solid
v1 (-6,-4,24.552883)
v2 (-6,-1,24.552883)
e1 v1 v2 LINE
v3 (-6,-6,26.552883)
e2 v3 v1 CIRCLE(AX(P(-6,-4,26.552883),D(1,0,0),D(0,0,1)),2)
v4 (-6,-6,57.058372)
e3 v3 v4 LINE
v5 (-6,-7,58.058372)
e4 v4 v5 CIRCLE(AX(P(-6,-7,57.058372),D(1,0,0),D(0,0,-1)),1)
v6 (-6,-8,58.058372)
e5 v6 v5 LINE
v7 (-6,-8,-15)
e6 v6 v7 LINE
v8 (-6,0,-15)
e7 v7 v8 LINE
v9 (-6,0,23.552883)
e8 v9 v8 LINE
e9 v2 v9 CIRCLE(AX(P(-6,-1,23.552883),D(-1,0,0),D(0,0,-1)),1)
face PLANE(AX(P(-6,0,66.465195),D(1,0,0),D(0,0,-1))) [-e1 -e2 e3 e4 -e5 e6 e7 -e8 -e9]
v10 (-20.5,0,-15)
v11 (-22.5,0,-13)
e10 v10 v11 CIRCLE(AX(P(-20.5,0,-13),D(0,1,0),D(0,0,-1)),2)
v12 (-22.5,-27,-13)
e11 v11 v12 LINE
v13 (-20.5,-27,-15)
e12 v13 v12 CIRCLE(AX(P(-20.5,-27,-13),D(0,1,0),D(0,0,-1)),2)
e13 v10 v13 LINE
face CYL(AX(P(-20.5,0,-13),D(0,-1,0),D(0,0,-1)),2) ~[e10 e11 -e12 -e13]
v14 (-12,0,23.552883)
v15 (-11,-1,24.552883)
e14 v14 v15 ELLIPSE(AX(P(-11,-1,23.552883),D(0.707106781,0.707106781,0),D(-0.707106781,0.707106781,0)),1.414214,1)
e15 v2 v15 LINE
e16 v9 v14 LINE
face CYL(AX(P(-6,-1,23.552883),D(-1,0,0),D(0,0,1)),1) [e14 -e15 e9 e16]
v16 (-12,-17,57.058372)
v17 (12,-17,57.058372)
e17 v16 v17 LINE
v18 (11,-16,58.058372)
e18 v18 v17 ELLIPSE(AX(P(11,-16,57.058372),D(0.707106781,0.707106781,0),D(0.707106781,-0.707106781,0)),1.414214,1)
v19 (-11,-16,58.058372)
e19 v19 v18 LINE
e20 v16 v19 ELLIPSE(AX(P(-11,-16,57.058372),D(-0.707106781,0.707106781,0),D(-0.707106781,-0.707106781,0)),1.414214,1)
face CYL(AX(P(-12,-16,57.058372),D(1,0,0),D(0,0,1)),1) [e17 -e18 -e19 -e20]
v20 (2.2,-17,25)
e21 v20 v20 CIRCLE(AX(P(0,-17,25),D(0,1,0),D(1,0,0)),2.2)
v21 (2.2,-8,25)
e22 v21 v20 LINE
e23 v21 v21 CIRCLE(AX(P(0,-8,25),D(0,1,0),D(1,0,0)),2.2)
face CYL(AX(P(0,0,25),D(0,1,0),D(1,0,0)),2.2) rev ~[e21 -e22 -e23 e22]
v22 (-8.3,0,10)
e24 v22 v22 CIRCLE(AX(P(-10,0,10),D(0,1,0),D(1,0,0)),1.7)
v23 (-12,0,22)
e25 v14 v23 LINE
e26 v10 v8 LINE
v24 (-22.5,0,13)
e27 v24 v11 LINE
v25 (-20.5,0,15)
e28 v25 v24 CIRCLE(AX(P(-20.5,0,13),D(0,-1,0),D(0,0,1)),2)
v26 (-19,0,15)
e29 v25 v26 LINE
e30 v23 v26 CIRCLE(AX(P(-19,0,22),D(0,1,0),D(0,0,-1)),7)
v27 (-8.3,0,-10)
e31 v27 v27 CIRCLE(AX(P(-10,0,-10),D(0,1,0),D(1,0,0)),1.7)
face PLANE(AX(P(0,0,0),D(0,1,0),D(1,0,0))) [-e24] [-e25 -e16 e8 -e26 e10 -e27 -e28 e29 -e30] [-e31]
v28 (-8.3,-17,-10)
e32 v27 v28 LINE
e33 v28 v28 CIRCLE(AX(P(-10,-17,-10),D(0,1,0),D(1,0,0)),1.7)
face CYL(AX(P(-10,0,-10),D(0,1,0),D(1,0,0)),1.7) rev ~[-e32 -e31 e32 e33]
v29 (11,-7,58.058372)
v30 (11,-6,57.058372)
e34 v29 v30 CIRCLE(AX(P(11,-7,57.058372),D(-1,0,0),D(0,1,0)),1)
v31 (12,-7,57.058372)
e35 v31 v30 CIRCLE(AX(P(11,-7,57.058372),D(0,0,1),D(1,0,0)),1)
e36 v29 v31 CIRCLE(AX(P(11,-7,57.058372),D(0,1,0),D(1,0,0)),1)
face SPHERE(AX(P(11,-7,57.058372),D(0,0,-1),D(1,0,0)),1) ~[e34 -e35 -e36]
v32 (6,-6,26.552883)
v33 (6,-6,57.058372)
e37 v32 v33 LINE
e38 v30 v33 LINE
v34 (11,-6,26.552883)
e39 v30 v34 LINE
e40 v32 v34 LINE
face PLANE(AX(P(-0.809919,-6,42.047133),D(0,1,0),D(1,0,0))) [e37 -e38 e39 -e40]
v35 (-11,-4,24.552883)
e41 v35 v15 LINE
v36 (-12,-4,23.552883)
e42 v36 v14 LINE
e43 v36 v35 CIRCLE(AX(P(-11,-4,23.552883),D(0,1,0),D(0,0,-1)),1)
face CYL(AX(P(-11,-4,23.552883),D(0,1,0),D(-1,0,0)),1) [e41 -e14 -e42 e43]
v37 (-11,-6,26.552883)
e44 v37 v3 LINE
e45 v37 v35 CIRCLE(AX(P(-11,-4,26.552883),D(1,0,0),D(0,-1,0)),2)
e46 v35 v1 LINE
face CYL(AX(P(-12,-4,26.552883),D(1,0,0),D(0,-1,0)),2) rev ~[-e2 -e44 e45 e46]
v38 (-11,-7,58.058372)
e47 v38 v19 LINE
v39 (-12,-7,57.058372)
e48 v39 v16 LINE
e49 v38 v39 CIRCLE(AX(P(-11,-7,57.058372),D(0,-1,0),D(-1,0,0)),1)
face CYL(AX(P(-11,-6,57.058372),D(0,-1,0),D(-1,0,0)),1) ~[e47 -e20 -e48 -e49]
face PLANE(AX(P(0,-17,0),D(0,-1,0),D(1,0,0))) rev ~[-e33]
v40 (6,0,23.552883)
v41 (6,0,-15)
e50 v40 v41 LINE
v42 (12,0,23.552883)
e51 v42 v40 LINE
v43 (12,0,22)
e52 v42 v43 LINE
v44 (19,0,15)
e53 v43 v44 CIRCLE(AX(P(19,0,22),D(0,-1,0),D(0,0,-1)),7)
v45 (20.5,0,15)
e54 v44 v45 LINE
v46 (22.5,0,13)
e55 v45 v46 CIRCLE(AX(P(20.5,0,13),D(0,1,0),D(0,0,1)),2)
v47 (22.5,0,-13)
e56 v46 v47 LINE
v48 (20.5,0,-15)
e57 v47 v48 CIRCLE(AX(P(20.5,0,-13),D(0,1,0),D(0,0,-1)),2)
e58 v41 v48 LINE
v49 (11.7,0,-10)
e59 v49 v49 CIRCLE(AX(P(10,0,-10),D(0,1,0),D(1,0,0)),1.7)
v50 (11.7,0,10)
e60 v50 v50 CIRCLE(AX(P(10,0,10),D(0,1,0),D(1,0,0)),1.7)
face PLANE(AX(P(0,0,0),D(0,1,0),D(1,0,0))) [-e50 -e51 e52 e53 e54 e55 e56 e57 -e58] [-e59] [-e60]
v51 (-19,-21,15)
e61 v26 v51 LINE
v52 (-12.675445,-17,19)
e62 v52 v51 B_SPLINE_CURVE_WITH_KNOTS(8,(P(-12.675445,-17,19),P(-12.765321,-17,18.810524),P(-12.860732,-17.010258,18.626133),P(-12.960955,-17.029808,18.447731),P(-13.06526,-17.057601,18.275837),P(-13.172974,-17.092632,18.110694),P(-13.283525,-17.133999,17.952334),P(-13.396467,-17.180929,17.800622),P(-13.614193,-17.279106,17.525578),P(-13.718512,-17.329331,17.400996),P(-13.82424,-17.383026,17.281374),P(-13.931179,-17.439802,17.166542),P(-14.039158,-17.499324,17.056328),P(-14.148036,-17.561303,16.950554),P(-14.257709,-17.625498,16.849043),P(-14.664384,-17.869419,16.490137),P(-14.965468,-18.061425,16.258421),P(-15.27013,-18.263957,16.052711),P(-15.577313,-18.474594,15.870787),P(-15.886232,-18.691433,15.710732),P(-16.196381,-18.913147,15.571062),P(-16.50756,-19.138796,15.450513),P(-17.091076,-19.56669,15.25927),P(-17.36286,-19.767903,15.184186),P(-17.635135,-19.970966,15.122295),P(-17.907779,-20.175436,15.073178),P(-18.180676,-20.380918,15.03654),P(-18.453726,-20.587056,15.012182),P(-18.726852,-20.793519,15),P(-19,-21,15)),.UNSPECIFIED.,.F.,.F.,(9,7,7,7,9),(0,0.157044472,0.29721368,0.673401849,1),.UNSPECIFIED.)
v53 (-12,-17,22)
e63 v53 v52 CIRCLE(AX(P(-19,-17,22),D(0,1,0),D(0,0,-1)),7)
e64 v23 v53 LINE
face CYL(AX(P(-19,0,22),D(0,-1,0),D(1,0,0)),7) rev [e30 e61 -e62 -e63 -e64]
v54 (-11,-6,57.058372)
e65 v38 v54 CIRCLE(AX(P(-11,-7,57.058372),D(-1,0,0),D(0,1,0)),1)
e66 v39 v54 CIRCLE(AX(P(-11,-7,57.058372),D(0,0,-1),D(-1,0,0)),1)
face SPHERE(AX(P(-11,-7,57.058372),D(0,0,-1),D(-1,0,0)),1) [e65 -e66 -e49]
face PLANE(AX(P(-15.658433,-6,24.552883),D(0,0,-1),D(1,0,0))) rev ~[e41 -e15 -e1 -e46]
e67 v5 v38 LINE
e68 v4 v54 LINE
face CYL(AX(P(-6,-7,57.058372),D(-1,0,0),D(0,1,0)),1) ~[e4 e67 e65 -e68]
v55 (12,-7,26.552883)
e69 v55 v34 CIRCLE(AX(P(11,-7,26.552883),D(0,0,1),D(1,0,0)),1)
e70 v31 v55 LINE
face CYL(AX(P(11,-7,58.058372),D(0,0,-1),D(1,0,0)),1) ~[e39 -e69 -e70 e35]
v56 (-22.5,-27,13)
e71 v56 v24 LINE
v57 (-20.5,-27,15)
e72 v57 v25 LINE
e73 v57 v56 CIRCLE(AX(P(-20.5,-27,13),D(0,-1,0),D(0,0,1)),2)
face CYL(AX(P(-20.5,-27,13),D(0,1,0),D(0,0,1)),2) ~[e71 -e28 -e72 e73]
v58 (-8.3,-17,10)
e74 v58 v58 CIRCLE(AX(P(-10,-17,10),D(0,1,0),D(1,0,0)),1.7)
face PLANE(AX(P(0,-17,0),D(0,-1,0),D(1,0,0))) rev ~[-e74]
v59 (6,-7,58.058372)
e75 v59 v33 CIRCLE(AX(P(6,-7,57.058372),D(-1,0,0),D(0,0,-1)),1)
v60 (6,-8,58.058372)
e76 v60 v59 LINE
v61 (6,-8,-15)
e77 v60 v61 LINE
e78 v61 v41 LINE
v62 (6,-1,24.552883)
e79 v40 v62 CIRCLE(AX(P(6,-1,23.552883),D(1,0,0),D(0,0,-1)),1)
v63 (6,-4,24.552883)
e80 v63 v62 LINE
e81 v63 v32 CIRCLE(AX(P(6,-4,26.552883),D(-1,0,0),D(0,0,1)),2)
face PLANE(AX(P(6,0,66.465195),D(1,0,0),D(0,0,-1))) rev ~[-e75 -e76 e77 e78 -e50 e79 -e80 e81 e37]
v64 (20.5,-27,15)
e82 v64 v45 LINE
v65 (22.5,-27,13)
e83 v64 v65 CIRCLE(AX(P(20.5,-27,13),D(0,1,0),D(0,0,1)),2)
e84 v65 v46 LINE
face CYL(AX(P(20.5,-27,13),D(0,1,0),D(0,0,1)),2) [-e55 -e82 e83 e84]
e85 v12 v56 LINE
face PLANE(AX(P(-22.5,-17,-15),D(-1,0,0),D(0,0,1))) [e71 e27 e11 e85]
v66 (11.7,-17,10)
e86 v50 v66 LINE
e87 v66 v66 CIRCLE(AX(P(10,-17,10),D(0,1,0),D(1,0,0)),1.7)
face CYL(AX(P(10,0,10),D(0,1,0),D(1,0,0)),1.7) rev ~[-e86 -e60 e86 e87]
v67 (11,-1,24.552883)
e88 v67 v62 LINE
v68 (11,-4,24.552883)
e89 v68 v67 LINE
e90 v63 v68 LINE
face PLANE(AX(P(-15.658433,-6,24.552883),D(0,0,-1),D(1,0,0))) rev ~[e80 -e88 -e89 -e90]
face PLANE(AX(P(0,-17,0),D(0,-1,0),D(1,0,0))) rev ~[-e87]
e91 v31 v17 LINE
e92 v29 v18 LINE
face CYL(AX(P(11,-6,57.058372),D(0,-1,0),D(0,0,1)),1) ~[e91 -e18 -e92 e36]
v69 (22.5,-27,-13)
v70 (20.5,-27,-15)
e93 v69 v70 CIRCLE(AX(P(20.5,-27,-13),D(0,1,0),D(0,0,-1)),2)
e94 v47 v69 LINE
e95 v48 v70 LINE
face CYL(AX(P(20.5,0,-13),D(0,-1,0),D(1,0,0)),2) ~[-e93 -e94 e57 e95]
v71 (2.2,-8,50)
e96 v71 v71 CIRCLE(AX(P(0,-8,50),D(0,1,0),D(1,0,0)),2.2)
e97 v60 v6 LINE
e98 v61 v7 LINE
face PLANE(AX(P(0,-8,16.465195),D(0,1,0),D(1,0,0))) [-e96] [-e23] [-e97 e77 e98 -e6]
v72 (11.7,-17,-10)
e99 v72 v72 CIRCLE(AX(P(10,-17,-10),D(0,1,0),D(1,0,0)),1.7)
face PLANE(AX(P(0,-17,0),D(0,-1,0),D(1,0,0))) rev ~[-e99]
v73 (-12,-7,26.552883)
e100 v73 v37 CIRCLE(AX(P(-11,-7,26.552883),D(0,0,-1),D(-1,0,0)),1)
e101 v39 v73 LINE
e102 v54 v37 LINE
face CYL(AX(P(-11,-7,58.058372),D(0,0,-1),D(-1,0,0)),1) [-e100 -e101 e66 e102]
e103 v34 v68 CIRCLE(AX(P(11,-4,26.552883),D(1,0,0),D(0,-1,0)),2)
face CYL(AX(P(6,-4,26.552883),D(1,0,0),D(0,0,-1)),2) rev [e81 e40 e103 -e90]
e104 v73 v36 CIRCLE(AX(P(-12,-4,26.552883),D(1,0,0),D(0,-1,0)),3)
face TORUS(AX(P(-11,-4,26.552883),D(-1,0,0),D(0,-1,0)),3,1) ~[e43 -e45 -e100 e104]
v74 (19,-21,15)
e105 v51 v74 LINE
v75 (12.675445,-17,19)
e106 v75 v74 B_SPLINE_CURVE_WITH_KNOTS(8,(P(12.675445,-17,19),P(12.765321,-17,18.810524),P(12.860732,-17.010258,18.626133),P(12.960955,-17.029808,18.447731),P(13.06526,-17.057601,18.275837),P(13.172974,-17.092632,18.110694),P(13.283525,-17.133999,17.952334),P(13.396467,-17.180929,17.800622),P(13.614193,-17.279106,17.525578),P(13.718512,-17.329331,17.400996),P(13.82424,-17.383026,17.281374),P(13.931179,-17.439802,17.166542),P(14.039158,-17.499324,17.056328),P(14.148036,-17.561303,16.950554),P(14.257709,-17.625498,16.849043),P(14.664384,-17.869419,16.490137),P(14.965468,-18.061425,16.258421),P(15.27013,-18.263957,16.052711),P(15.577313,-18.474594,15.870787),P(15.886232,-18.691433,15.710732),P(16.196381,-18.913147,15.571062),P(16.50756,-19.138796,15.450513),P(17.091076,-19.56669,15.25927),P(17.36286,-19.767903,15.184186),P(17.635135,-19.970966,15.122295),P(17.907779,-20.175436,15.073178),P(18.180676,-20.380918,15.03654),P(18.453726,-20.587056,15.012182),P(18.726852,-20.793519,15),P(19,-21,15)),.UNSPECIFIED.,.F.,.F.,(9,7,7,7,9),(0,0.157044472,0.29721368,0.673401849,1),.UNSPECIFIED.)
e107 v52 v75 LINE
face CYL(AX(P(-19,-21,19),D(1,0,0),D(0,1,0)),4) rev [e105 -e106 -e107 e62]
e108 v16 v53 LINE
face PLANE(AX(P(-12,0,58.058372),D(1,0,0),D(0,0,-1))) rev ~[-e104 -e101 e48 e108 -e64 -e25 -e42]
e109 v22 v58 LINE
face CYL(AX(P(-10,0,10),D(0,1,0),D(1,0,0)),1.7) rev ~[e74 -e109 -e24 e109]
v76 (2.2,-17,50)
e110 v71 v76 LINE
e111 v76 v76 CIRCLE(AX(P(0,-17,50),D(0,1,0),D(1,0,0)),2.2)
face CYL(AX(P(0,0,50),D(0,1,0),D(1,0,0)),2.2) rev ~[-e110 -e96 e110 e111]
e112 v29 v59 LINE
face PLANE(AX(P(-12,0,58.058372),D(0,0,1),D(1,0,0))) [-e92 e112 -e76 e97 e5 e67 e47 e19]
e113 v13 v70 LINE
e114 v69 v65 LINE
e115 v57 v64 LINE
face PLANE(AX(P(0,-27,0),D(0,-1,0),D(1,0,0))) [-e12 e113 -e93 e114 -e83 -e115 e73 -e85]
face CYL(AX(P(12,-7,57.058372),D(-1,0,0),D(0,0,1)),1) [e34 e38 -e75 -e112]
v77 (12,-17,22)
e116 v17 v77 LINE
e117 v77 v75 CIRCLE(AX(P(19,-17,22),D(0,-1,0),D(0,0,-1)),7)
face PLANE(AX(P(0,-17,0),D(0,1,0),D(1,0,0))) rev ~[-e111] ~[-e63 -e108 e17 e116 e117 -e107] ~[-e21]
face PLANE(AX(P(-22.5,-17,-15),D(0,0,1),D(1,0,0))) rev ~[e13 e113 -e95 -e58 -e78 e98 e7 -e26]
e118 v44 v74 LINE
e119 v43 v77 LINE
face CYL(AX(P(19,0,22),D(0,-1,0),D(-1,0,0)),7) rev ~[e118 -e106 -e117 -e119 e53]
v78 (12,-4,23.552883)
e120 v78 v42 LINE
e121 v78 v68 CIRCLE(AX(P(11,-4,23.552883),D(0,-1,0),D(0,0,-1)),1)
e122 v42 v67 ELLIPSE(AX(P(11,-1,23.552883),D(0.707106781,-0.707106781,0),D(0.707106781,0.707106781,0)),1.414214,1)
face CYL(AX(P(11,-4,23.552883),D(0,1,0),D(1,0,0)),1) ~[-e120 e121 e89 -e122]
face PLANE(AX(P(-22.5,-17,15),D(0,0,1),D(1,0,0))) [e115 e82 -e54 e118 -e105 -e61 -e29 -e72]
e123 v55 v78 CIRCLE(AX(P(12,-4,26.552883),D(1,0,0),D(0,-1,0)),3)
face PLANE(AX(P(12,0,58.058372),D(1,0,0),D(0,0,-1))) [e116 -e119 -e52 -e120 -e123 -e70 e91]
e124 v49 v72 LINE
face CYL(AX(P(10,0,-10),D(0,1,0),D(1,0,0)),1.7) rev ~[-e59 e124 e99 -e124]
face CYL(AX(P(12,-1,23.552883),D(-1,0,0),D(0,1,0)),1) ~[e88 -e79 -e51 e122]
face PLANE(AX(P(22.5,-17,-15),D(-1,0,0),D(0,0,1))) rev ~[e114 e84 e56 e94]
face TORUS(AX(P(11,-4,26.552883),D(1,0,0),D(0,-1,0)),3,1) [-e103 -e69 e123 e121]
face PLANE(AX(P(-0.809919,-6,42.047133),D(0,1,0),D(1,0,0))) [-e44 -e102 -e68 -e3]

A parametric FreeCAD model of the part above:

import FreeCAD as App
import Part
import Sketcher


def edges_at(feature, points):
    """Names of the edges that pass closest to the given points."""
    edges = feature.Shape.Edges
    near = lambda p: min(range(len(edges)), key=lambda i: edges[i].distToShape(Part.Vertex(*p))[0])
    return sorted({f"Edge{near(p) + 1}" for p in points})

doc = App.newDocument("Part")
body = doc.addObject("PartDesign::Body", "Body")

# Sketch on XZ plane
sketch1 = body.newObject("Sketcher::SketchObject", "Sketch")
sketch1.AttachmentSupport = (doc.getObject("XZ_Plane"), [""])
sketch1.MapMode = "FlatFace"
sketch1.addGeometry(Part.LineSegment(App.Vector(-22.5, -15, 0), App.Vector(-22.5, 15, 0)), False)
sketch1.addGeometry(Part.LineSegment(App.Vector(-22.5, 15, 0), App.Vector(-12, 15, 0)), False)
sketch1.addGeometry(Part.LineSegment(App.Vector(-12, 15, 0), App.Vector(-12, 58.1, 0)), False)
sketch1.addGeometry(Part.LineSegment(App.Vector(-12, 58.1, 0), App.Vector(12, 58.1, 0)), False)
sketch1.addGeometry(Part.LineSegment(App.Vector(12, 58.1, 0), App.Vector(12, 15, 0)), False)
sketch1.addGeometry(Part.LineSegment(App.Vector(12, 15, 0), App.Vector(22.5, 15, 0)), False)
sketch1.addGeometry(Part.LineSegment(App.Vector(22.5, 15, 0), App.Vector(22.5, -15, 0)), False)
sketch1.addGeometry(Part.LineSegment(App.Vector(22.5, -15, 0), App.Vector(-22.5, -15, 0)), False)
sketch1.addGeometry(Part.Circle(App.Vector(0, 50, 0), App.Vector(0, 0, 1), 2.2), False)
sketch1.addGeometry(Part.Circle(App.Vector(0, 25, 0), App.Vector(0, 0, 1), 2.2), False)
sketch1.addGeometry(Part.Circle(App.Vector(-10, 10, 0), App.Vector(0, 0, 1), 1.7), False)
sketch1.addGeometry(Part.Circle(App.Vector(-10, -10, 0), App.Vector(0, 0, 1), 1.7), False)
sketch1.addGeometry(Part.Circle(App.Vector(10, 10, 0), App.Vector(0, 0, 1), 1.7), False)
sketch1.addGeometry(Part.Circle(App.Vector(10, -10, 0), App.Vector(0, 0, 1), 1.7), False)
sketch1.addConstraint(Sketcher.Constraint("Coincident", 0, 2, 1, 1))
sketch1.addConstraint(Sketcher.Constraint("Coincident", 1, 2, 2, 1))
sketch1.addConstraint(Sketcher.Constraint("Coincident", 2, 2, 3, 1))
sketch1.addConstraint(Sketcher.Constraint("Coincident", 3, 2, 4, 1))
sketch1.addConstraint(Sketcher.Constraint("Coincident", 4, 2, 5, 1))
sketch1.addConstraint(Sketcher.Constraint("Coincident", 5, 2, 6, 1))
sketch1.addConstraint(Sketcher.Constraint("Coincident", 6, 2, 7, 1))
sketch1.addConstraint(Sketcher.Constraint("Coincident", 7, 2, 0, 1))
sketch1.addConstraint(Sketcher.Constraint("Vertical", 0))
sketch1.addConstraint(Sketcher.Constraint("Horizontal", 1))
sketch1.addConstraint(Sketcher.Constraint("Vertical", 2))
sketch1.addConstraint(Sketcher.Constraint("Horizontal", 3))
sketch1.addConstraint(Sketcher.Constraint("Vertical", 4))
sketch1.addConstraint(Sketcher.Constraint("Horizontal", 5))
sketch1.addConstraint(Sketcher.Constraint("Vertical", 6))
sketch1.addConstraint(Sketcher.Constraint("Horizontal", 7))
sketch1.addConstraint(Sketcher.Constraint("Equal", 8, 9))
sketch1.addConstraint(Sketcher.Constraint("Equal", 10, 11))
sketch1.addConstraint(Sketcher.Constraint("Equal", 11, 12))
sketch1.addConstraint(Sketcher.Constraint("Equal", 12, 13))
sketch1.addConstraint(Sketcher.Constraint("Symmetric", 11, 3, 12, 3, -1, 1))
sketch1.addConstraint(Sketcher.Constraint("Symmetric", 10, 3, 13, 3, -1, 1))
sketch1.addConstraint(Sketcher.Constraint("Symmetric", 0, 2, 6, 2, -1, 1))
sketch1.addConstraint(Sketcher.Constraint("Symmetric", 10, 3, 12, 3, -2))
sketch1.addConstraint(Sketcher.Constraint("Symmetric", 1, 2, 4, 2, -2))
sketch1.addConstraint(Sketcher.Constraint("PointOnObject", 8, 3, -2))
sketch1.addConstraint(Sketcher.Constraint("PointOnObject", 9, 3, -2))
sketch1.addConstraint(Sketcher.Constraint("Diameter", 8, 4.4))
sketch1.addConstraint(Sketcher.Constraint("Diameter", 10, 3.4))
sketch1.addConstraint(Sketcher.Constraint("DistanceX", 3, 1, 3, 2, 24.0))
sketch1.addConstraint(Sketcher.Constraint("DistanceX", 7, 2, 7, 1, 45.0))
sketch1.addConstraint(Sketcher.Constraint("DistanceY", 0, 1, 0, 2, 30.0))
sketch1.addConstraint(Sketcher.Constraint("DistanceY", -1, 1, 8, 3, 50.0))
sketch1.addConstraint(Sketcher.Constraint("DistanceY", -1, 1, 9, 3, 25.0))
sketch1.addConstraint(Sketcher.Constraint("DistanceX", 10, 3, -1, 1, 10.0))
sketch1.addConstraint(Sketcher.Constraint("DistanceY", -1, 1, 10, 3, 10.0))
sketch1.addConstraint(Sketcher.Constraint("DistanceY", 2, 1, 2, 2, 43.058372))
pad1 = body.newObject("PartDesign::Pad", "Pad")
pad1.Profile = sketch1
pad1.Length = 17

# Sketch on XZ plane
sketch2 = body.newObject("Sketcher::SketchObject", "Sketch001")
sketch2.AttachmentSupport = (doc.getObject("XZ_Plane"), [""])
sketch2.MapMode = "FlatFace"
sketch2.addGeometry(Part.LineSegment(App.Vector(-6, -34, 0), App.Vector(-6, 66, 0)), False)
sketch2.addGeometry(Part.LineSegment(App.Vector(-6, 66, 0), App.Vector(6, 66, 0)), False)
sketch2.addGeometry(Part.LineSegment(App.Vector(6, 66, 0), App.Vector(6, -34, 0)), False)
sketch2.addGeometry(Part.LineSegment(App.Vector(6, -34, 0), App.Vector(-6, -34, 0)), False)
sketch2.addConstraint(Sketcher.Constraint("Coincident", 0, 2, 1, 1))
sketch2.addConstraint(Sketcher.Constraint("Coincident", 1, 2, 2, 1))
sketch2.addConstraint(Sketcher.Constraint("Coincident", 2, 2, 3, 1))
sketch2.addConstraint(Sketcher.Constraint("Coincident", 3, 2, 0, 1))
sketch2.addConstraint(Sketcher.Constraint("Vertical", 0))
sketch2.addConstraint(Sketcher.Constraint("Horizontal", 1))
sketch2.addConstraint(Sketcher.Constraint("Vertical", 2))
sketch2.addConstraint(Sketcher.Constraint("Horizontal", 3))
sketch2.addConstraint(Sketcher.Constraint("DistanceX", 1, 1, 1, 2, 12.0))
sketch2.addConstraint(Sketcher.Constraint("DistanceY", 0, 1, 0, 2, 100.0))
sketch2.addConstraint(Sketcher.Constraint("DistanceX", 0, 2, -1, 1, 6.0))
sketch2.addConstraint(Sketcher.Constraint("DistanceY", -1, 1, 0, 2, 66.465195))
pocket1 = body.newObject("PartDesign::Pocket", "Pocket")
pocket1.Profile = sketch2
pocket1.Length = 8
pocket1.Reversed = True

# Sketch on XZ plane
sketch3 = body.newObject("Sketcher::SketchObject", "Sketch002")
sketch3.AttachmentSupport = (doc.getObject("XZ_Plane"), [""])
sketch3.MapMode = "FlatFace"
sketch3.AttachmentOffset = App.Placement(App.Vector(0, 0, 6), App.Rotation())
sketch3.addGeometry(Part.LineSegment(App.Vector(-16, 25, 0), App.Vector(-16, 60, 0)), False)
sketch3.addGeometry(Part.LineSegment(App.Vector(-16, 60, 0), App.Vector(14, 60, 0)), False)
sketch3.addGeometry(Part.LineSegment(App.Vector(14, 60, 0), App.Vector(14, 25, 0)), False)
sketch3.addGeometry(Part.LineSegment(App.Vector(14, 25, 0), App.Vector(-16, 25, 0)), False)
sketch3.addConstraint(Sketcher.Constraint("Coincident", 0, 2, 1, 1))
sketch3.addConstraint(Sketcher.Constraint("Coincident", 1, 2, 2, 1))
sketch3.addConstraint(Sketcher.Constraint("Coincident", 2, 2, 3, 1))
sketch3.addConstraint(Sketcher.Constraint("Coincident", 3, 2, 0, 1))
sketch3.addConstraint(Sketcher.Constraint("Vertical", 0))
sketch3.addConstraint(Sketcher.Constraint("Horizontal", 1))
sketch3.addConstraint(Sketcher.Constraint("Vertical", 2))
sketch3.addConstraint(Sketcher.Constraint("Horizontal", 3))
sketch3.addConstraint(Sketcher.Constraint("DistanceY", 0, 1, 0, 2, 34.988499))
sketch3.addConstraint(Sketcher.Constraint("DistanceX", 1, 1, 1, 2, 29.697029))
sketch3.addConstraint(Sketcher.Constraint("DistanceX", 0, 2, -1, 1, 15.658433))
sketch3.addConstraint(Sketcher.Constraint("DistanceY", -1, 1, 0, 2, 59.541383))
pocket2 = body.newObject("PartDesign::Pocket", "Pocket001")
pocket2.Profile = sketch3
pocket2.Type = "ThroughAll"

# Sketch on XZ plane
sketch4 = body.newObject("Sketcher::SketchObject", "Sketch003")
sketch4.AttachmentSupport = (doc.getObject("XZ_Plane"), [""])
sketch4.MapMode = "FlatFace"
sketch4.AttachmentOffset = App.Placement(App.Vector(0, 0, 17), App.Rotation())
sketch4.addGeometry(Part.LineSegment(App.Vector(-22, 15, 0), App.Vector(-22, -15, 0)), False)
sketch4.addGeometry(Part.LineSegment(App.Vector(-22, -15, 0), App.Vector(22, -15, 0)), False)
sketch4.addGeometry(Part.LineSegment(App.Vector(22, -15, 0), App.Vector(22, 15, 0)), False)
sketch4.addGeometry(Part.LineSegment(App.Vector(22, 15, 0), App.Vector(-22, 15, 0)), False)
sketch4.addConstraint(Sketcher.Constraint("Coincident", 0, 2, 1, 1))
sketch4.addConstraint(Sketcher.Constraint("Coincident", 1, 2, 2, 1))
sketch4.addConstraint(Sketcher.Constraint("Coincident", 2, 2, 3, 1))
sketch4.addConstraint(Sketcher.Constraint("Coincident", 3, 2, 0, 1))
sketch4.addConstraint(Sketcher.Constraint("Vertical", 0))
sketch4.addConstraint(Sketcher.Constraint("Horizontal", 1))
sketch4.addConstraint(Sketcher.Constraint("Vertical", 2))
sketch4.addConstraint(Sketcher.Constraint("Horizontal", 3))
sketch4.addConstraint(Sketcher.Constraint("Symmetric", 0, 2, 2, 2, -1, 1))
sketch4.addConstraint(Sketcher.Constraint("DistanceX", 1, 1, 1, 2, 45.0))
sketch4.addConstraint(Sketcher.Constraint("DistanceY", 0, 2, 0, 1, 30.0))
pad2 = body.newObject("PartDesign::Pad", "Pad001")
pad2.Profile = sketch4
pad2.Length = 10
doc.recompute()

fillet = body.newObject("PartDesign::Fillet", "Fillet")
fillet.Base = (pad2, edges_at(pad2, [(-12, -8.5, 15), (12, -8.5, 15)]))
fillet.Radius = 7
doc.recompute()

fillet2 = body.newObject("PartDesign::Fillet", "Fillet001")
fillet2.Base = (fillet, edges_at(fillet, [
    (22.5, -13.5, 15),
    (-22.5, -13.5, 15),
    (-22.5, -13.5, -15),
    (22.5, -13.5, -15),
    (9, -6, 24.553),
    (-9, -6, 24.553),
]))
fillet2.Radius = 2
doc.recompute()

fillet3 = body.newObject("PartDesign::Fillet", "Fillet002")
fillet3.Base = (fillet2, edges_at(fillet2, [
    (-12, -2, 24.553),
    (12, -2, 24.553),
    (-12, -5.414, 25.139),
    (12, -5.414, 25.139),
    (-12, -11.5, 58.058),
    (12, -11.5, 58.058),
    (0, -17, 58.058),
    (9, 0, 24.553),
    (9, -6, 58.058),
    (12, -6, 42.306),
    (-9, 0, 24.553),
    (-9, -6, 58.058),
    (-12, -6, 42.306),
]))
fillet3.Radius = 1
doc.recompute()

fillet4 = body.newObject("PartDesign::Fillet", "Fillet003")
fillet4.Base = (fillet3, edges_at(fillet3, [(0, -17, 15)]))
fillet4.Radius = 4

doc.recompute()
